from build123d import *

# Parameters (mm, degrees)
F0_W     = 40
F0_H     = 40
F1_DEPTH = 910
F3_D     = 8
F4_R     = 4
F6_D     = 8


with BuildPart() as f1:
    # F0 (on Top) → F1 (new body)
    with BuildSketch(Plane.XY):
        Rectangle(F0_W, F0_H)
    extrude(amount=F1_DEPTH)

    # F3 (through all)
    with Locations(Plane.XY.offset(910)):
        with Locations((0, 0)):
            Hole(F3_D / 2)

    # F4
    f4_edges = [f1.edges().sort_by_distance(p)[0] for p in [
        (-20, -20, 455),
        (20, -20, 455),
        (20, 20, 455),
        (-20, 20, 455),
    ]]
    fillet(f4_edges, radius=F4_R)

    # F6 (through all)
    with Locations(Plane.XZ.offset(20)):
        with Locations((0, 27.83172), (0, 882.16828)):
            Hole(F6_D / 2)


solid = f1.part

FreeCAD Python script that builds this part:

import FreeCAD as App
import Part
import Sketcher
from FreeCAD import Vector
Q = App.Units.Quantity


def edges_at(feature, points):
    """Names of the edges that pass closest to the given points."""
    edges = feature.Shape.Edges
    near = lambda p: min(range(len(edges)), key=lambda i: edges[i].distToShape(Part.Vertex(*p))[0])
    return sorted({f"Edge{near(p) + 1}" for p in points})


def add_polygon(sketch, points):
    """Adds a closed chain of lines whose ends are joined by coincident constraints."""
    first, n = sketch.GeometryCount, len(points)
    for a, b in zip(points, points[1:] + points[:1]):
        sketch.addGeometry(Part.LineSegment(App.Vector(*a, 0), App.Vector(*b, 0)), False)
    for i in range(n):
        sketch.addConstraint(Sketcher.Constraint("Coincident", first + i, 2, first + (i + 1) % n, 1))

doc = App.newDocument("Part")
body = doc.addObject("PartDesign::Body", "Body")

sketch1 = doc.addObject("Sketcher::SketchObject", "Sketch")
body.addObject(sketch1)
sketch1.AttachmentSupport = (doc.XY_Plane, [""])
sketch1.MapMode = "FlatFace"
add_polygon(sketch1, [(-20, 20), (-20, -20), (20, -20), (20, 20)])
sketch1.addConstraint([
    Sketcher.Constraint("Vertical", 0),
    Sketcher.Constraint("Horizontal", 1),
    Sketcher.Constraint("Vertical", 2),
    Sketcher.Constraint("Horizontal", 3),
    Sketcher.Constraint("Symmetric", 0, 2, 2, 2, -1, 1),
    Sketcher.Constraint("Equal", 3, 0),
    Sketcher.Constraint("DistanceX", 1, 1, 1, 2, Q("40 mm")),
])
pad1 = doc.addObject("PartDesign::Pad", "Pad")
body.addObject(pad1)
pad1.Profile = sketch1
pad1.Length = 910

sketch2 = doc.addObject("Sketcher::SketchObject", "Sketch001")
body.addObject(sketch2)
sketch2.AttachmentSupport = (doc.XY_Plane, [""])
sketch2.MapMode = "FlatFace"
sketch2.AttachmentOffset = App.Placement(Vector(0, 0, 910), App.Rotation())
sketch2.addGeometry(Part.Circle(Vector(0, 0, 0), Vector(0, 0, 1), 4), False)
sketch2.addConstraint([
    Sketcher.Constraint("Coincident", 0, 3, -1, 1),
    Sketcher.Constraint("Diameter", 0, Q("8 mm")),
])
doc.recompute()
hole = doc.addObject("PartDesign::Hole", "Hole")
body.addObject(hole)
hole.Profile = sketch2
hole.ThreadType = "None"
hole.Diameter = 8
hole.DepthType = "ThroughAll"
doc.recompute()

fillet = doc.addObject("PartDesign::Fillet", "Fillet")
body.addObject(fillet)
fillet.Base = (hole, edges_at(hole, [
    (-20, -20, 455),
    (20, -20, 455),
    (20, 20, 455),
    (-20, 20, 455),
]))
fillet.Radius = 4

sketch3 = doc.addObject("Sketcher::SketchObject", "Sketch002")
body.addObject(sketch3)
sketch3.AttachmentSupport = (doc.XZ_Plane, [""])
sketch3.MapMode = "FlatFace"
sketch3.AttachmentOffset = App.Placement(Vector(0, 0, 20), App.Rotation())
sketch3.addGeometry([
    Part.Circle(Vector(0, 27.8, 0), Vector(0, 0, 1), 4),
    Part.Circle(Vector(0, 882.2, 0), Vector(0, 0, 1), 4),
], False)
sketch3.addConstraint([
    Sketcher.Constraint("Equal", 0, 1),
    Sketcher.Constraint("PointOnObject", 0, 3, -2),
    Sketcher.Constraint("PointOnObject", 1, 3, -2),
    Sketcher.Constraint("Diameter", 0, Q("8 mm")),
    Sketcher.Constraint("DistanceY", -1, 1, 0, 3, Q("27.83172 mm")),
    Sketcher.Constraint("DistanceY", -1, 1, 1, 3, Q("882.16828 mm")),
])
doc.recompute()
hole2 = doc.addObject("PartDesign::Hole", "Hole001")
body.addObject(hole2)
hole2.Profile = sketch3
hole2.ThreadType = "None"
hole2.Diameter = 8
hole2.DepthType = "ThroughAll"

doc.recompute()
